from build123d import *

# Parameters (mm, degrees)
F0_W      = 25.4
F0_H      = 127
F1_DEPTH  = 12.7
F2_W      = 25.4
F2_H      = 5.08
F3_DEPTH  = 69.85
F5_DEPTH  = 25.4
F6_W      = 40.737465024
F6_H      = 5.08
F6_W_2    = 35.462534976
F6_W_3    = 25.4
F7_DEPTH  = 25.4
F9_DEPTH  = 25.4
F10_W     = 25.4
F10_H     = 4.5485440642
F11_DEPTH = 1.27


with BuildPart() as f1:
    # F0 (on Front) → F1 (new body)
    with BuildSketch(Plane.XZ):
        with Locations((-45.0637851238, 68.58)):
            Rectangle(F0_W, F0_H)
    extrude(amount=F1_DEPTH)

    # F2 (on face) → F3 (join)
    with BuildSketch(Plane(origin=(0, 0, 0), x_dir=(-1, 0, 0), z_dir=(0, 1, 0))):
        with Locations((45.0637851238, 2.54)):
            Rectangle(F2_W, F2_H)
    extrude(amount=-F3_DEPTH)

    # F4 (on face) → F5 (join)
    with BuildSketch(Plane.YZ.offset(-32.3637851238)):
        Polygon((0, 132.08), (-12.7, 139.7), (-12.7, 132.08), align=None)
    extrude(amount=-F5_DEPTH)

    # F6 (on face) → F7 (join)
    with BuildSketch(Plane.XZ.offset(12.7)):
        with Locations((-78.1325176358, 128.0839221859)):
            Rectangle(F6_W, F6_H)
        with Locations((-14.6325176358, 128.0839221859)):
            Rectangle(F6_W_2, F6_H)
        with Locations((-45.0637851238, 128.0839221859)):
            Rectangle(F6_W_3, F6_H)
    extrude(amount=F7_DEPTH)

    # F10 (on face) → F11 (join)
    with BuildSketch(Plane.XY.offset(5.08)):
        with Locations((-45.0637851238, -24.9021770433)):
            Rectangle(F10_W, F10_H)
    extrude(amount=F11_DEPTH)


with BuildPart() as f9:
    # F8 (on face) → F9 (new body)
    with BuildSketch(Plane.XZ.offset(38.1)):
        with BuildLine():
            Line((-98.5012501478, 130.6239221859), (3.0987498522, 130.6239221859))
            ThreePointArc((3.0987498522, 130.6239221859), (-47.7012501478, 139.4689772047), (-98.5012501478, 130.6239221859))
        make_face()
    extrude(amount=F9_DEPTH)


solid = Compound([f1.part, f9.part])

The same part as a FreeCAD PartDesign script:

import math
import FreeCAD as App
import Part
import Sketcher
Q = App.Units.Quantity


def add_polygon(sketch, points):
    """Adds a closed chain of lines whose ends are joined by coincident constraints."""
    first, n = sketch.GeometryCount, len(points)
    for a, b in zip(points, points[1:] + points[:1]):
        sketch.addGeometry(Part.LineSegment(App.Vector(*a, 0), App.Vector(*b, 0)), False)
    for i in range(n):
        sketch.addConstraint(Sketcher.Constraint("Coincident", first + i, 2, first + (i + 1) % n, 1))

doc = App.newDocument("Part")
params = doc.addObject("Spreadsheet::Sheet", "Params")
for row, (alias, value) in enumerate([
    ("sketch1_width", "1 in"),
    ("sketch1_height", "5 in"),
    ("pad1_length", "0.5 in"),
    ("sketch2_width", "1 in"),
    ("sketch2_height", "0.2 in"),
    ("pad2_length", "2.75 in"),
    ("sketch3_width", "0.5 in"),
    ("sketch3_height", "0.3 in"),
    ("pad3_length", "1 in"),
    ("sketch4_width", "4 in"),
    ("sketch4_height", "0.2 in"),
    ("pad4_length", "1 in"),
    ("sketch5_width", "1 in"),
    ("pad5_length", "0.05 in"),
    ("sketch6_width", "4 in"),
    ("pad6_length", "1 in"),
], start=1):
    params.set(f"A{row}", alias)
    params.set(f"B{row}", "=" + value)
    params.setAlias(f"B{row}", alias)

body = doc.addObject("PartDesign::Body", "Body")

# Sketch on XZ plane
sketch1 = doc.addObject("Sketcher::SketchObject", "Sketch")
body.addObject(sketch1)
sketch1.AttachmentSupport = (doc.XZ_Plane, [""])
sketch1.MapMode = "FlatFace"
add_polygon(sketch1, [(-57.763785, 132.08), (-57.763785, 5.08), (-32.363785, 5.08), (-32.363785, 132.08)])  # lines 0-3
sketch1.addConstraint([
    Sketcher.Constraint("Vertical", 0),
    Sketcher.Constraint("Horizontal", 1),
    Sketcher.Constraint("Vertical", 2),
    Sketcher.Constraint("Horizontal", 3),
    Sketcher.Constraint("DistanceX", 1, 1, 1, 2, Q("1 in")),
    Sketcher.Constraint("DistanceY", 0, 2, 0, 1, Q("5 in")),
    Sketcher.Constraint("DistanceY", -1, 1, 0, 2, Q("0.2 in")),
    Sketcher.Constraint("DistanceX", 0, 2, -1, 1, 57.763785),
])
sketch1.setExpression("Constraints[8]", "Params.sketch1_width")
sketch1.setExpression("Constraints[9]", "Params.sketch1_height")
pad1 = doc.addObject("PartDesign::Pad", "Pad")
body.addObject(pad1)
pad1.Profile = sketch1
pad1.setExpression("Length", "Params.pad1_length")

# Sketch on XZ plane
sketch2 = doc.addObject("Sketcher::SketchObject", "Sketch001")
body.addObject(sketch2)
sketch2.AttachmentSupport = (doc.XZ_Plane, [""])
sketch2.MapMode = "FlatFace"
add_polygon(sketch2, [(-32.363785, 5.08), (-32.363785, 0), (-57.763785, 0), (-57.763785, 5.08)])  # lines 0-3
sketch2.addConstraint([
    Sketcher.Constraint("Vertical", 0),
    Sketcher.Constraint("Horizontal", 1),
    Sketcher.Constraint("Vertical", 2),
    Sketcher.Constraint("Horizontal", 3),
    Sketcher.Constraint("PointOnObject", 0, 2, -1),
    Sketcher.Constraint("DistanceX", 1, 2, 1, 1, Q("1 in")),
    Sketcher.Constraint("DistanceY", 0, 2, 0, 1, Q("0.2 in")),
    Sketcher.Constraint("DistanceX", 0, 2, -1, 1, 32.363785),
])
sketch2.setExpression("Constraints[9]", "Params.sketch2_width")
sketch2.setExpression("Constraints[10]", "Params.sketch2_height")
pad2 = doc.addObject("PartDesign::Pad", "Pad001")
body.addObject(pad2)
pad2.Profile = sketch2
pad2.setExpression("Length", "Params.pad2_length")

# Sketch on YZ plane
sketch3 = doc.addObject("Sketcher::SketchObject", "Sketch002")
body.addObject(sketch3)
sketch3.AttachmentSupport = (doc.YZ_Plane, [""])
sketch3.MapMode = "FlatFace"
sketch3.AttachmentOffset = App.Placement(App.Vector(0, 0, -32.363785), App.Rotation())
add_polygon(sketch3, [(0, 132.08), (-12.7, 139.7), (-12.7, 132.08)])  # lines 0-2
sketch3.addConstraint([
    Sketcher.Constraint("Vertical", 1),
    Sketcher.Constraint("Horizontal", 2),
    Sketcher.Constraint("PointOnObject", 2, 2, -2),
    Sketcher.Constraint("DistanceX", 2, 1, 2, 2, Q("0.5 in")),
    Sketcher.Constraint("DistanceY", 1, 2, 1, 1, Q("0.3 in")),
    Sketcher.Constraint("DistanceY", -1, 1, 0, 2, Q("5.5 in")),
])
sketch3.setExpression("Constraints[6]", "Params.sketch3_width")
sketch3.setExpression("Constraints[7]", "Params.sketch3_height")
pad3 = doc.addObject("PartDesign::Pad", "Pad002")
body.addObject(pad3)
pad3.Profile = sketch3
pad3.setExpression("Length", "Params.pad3_length")
pad3.Reversed = True

# Sketch on XZ plane
sketch4 = doc.addObject("Sketcher::SketchObject", "Sketch003")
body.addObject(sketch4)
sketch4.AttachmentSupport = (doc.XZ_Plane, [""])
sketch4.MapMode = "FlatFace"
sketch4.AttachmentOffset = App.Placement(App.Vector(0, 0, 0.5 * 25.4), App.Rotation())
add_polygon(sketch4, [(-98.50125, 130.623922), (-98.50125, 125.543922), (3.09875, 125.543922), (3.09875, 130.623922)])  # lines 0-3
sketch4.addConstraint([
    Sketcher.Constraint("Vertical", 0),
    Sketcher.Constraint("Horizontal", 1),
    Sketcher.Constraint("Vertical", 2),
    Sketcher.Constraint("Horizontal", 3),
    Sketcher.Constraint("DistanceX", 1, 1, 1, 2, Q("4 in")),
    Sketcher.Constraint("DistanceY", 0, 2, 0, 1, Q("0.2 in")),
    Sketcher.Constraint("DistanceX", 0, 2, -1, 1, 98.50125),
    Sketcher.Constraint("DistanceY", -1, 1, 0, 2, 125.543922),
])
sketch4.setExpression("Constraints[8]", "Params.sketch4_width")
sketch4.setExpression("Constraints[9]", "Params.sketch4_height")
pad4 = doc.addObject("PartDesign::Pad", "Pad003")
body.addObject(pad4)
pad4.Profile = sketch4
pad4.setExpression("Length", "Params.pad4_length")

# Sketch on XY plane
sketch5 = doc.addObject("Sketcher::SketchObject", "Sketch004")
body.addObject(sketch5)
sketch5.AttachmentSupport = (doc.XY_Plane, [""])
sketch5.MapMode = "FlatFace"
sketch5.AttachmentOffset = App.Placement(App.Vector(0, 0, 0.2 * 25.4), App.Rotation())
add_polygon(sketch5, [(-57.763785, -22.627905), (-57.763785, -27.176449), (-32.363785, -27.176449), (-32.363785, -22.627905)])  # lines 0-3
sketch5.addConstraint([
    Sketcher.Constraint("Vertical", 0),
    Sketcher.Constraint("Horizontal", 1),
    Sketcher.Constraint("Vertical", 2),
    Sketcher.Constraint("Horizontal", 3),
    Sketcher.Constraint("DistanceX", 1, 1, 1, 2, Q("1 in")),
    Sketcher.Constraint("DistanceY", 0, 2, 0, 1, 4.548544),
    Sketcher.Constraint("DistanceY", 0, 2, -1, 1, 27.176449),
    Sketcher.Constraint("DistanceX", 0, 2, -1, 1, 57.763785),
])
sketch5.setExpression("Constraints[8]", "Params.sketch5_width")
pad5 = doc.addObject("PartDesign::Pad", "Pad004")
body.addObject(pad5)
pad5.Profile = sketch5
pad5.setExpression("Length", "Params.pad5_length")
body2 = doc.addObject("PartDesign::Body", "Body001")

# Sketch on XZ plane
sketch6 = doc.addObject("Sketcher::SketchObject", "Sketch005")
body2.addObject(sketch6)
sketch6.AttachmentSupport = (doc.getObject("XZ_Plane001"), [""])
sketch6.MapMode = "FlatFace"
sketch6.AttachmentOffset = App.Placement(App.Vector(0, 0, 1.5 * 25.4), App.Rotation())
sketch6.addGeometry([
    Part.LineSegment(App.Vector(-98.50125, 130.623922, 0), App.Vector(3.09875, 130.623922, 0)),
    Part.ArcOfCircle(Part.Circle(App.Vector(-47.70125, -10.833932, 0), App.Vector(0, 0, 1), 150.302909), math.radians(70.245895), math.radians(109.754105)),
], False)
sketch6.addConstraint([
    Sketcher.Constraint("Coincident", 0, 1, 1, 2),
    Sketcher.Constraint("Coincident", 1, 1, 0, 2),
    Sketcher.Constraint("Horizontal", 0),
    Sketcher.Constraint("DistanceX", 0, 1, 0, 2, Q("4 in")),
    Sketcher.Constraint("Radius", 1, 150.302909),
    Sketcher.Constraint("DistanceX", 1, 3, -1, 1, 47.70125),
    Sketcher.Constraint("DistanceY", 1, 3, -1, 1, 10.833932),
])
sketch6.setExpression("Constraints[3]", "Params.sketch6_width")
pad6 = doc.addObject("PartDesign::Pad", "Pad005")
body2.addObject(pad6)
pad6.Profile = sketch6
pad6.setExpression("Length", "Params.pad6_length")

doc.recompute()
